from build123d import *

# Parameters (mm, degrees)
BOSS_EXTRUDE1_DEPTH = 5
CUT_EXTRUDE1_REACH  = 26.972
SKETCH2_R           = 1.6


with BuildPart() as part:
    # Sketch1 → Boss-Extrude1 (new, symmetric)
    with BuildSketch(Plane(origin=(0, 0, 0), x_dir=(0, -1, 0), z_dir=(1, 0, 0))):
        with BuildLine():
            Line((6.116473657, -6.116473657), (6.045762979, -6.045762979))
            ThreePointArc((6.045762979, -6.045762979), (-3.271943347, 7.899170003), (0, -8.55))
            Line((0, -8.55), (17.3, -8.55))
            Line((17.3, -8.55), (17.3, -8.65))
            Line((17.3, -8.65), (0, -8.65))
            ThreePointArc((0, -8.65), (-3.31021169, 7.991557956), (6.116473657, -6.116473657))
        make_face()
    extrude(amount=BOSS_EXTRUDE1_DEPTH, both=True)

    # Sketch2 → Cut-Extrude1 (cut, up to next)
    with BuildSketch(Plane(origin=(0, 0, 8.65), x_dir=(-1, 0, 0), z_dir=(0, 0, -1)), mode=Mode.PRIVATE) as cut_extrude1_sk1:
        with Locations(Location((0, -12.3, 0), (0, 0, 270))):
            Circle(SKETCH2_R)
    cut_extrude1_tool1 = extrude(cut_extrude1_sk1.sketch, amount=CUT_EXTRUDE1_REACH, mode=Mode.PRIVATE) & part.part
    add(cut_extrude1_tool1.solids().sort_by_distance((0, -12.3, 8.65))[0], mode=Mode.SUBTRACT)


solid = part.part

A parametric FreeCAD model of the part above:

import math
import FreeCAD as App
import Part
import Sketcher
from FreeCAD import Vector
Q = App.Units.Quantity

doc = App.newDocument("Part")
body = doc.addObject("PartDesign::Body", "Body")

# Sketch on YZ plane
sketch1 = doc.addObject("Sketcher::SketchObject", "Sketch")
body.addObject(sketch1)
sketch1.AttachmentSupport = (doc.YZ_Plane, [""])
sketch1.MapMode = "FlatFace"
sketch1.addGeometry(Part.LineSegment(Vector(-6.05, 6.05, 0), Vector(-6.12, 6.12, 0)), False)
sketch1.addGeometry(Part.ArcOfCircle(Part.Circle(Vector(0, 0, 0), Vector(0, 0, 1), 8.65), math.radians(135), math.radians(450)), False)
sketch1.addGeometry(Part.LineSegment(Vector(0, 8.65, 0), Vector(-17.3, 8.65, 0)), False)
sketch1.addGeometry(Part.LineSegment(Vector(-17.3, 8.65, 0), Vector(-17.3, 8.55, 0)), False)
sketch1.addGeometry(Part.LineSegment(Vector(-17.3, 8.55, 0), Vector(0, 8.55, 0)), False)
sketch1.addGeometry(Part.ArcOfCircle(Part.Circle(Vector(0, 0, 0), Vector(0, 0, 1), 8.55), math.radians(135), math.radians(450)), False)
sketch1.addConstraint(Sketcher.Constraint("Coincident", 0, 2, 1, 1))
sketch1.addConstraint(Sketcher.Constraint("Tangent", 1, 2, 2, 1))
sketch1.addConstraint(Sketcher.Constraint("Coincident", 2, 2, 3, 1))
sketch1.addConstraint(Sketcher.Constraint("Coincident", 3, 2, 4, 1))
sketch1.addConstraint(Sketcher.Constraint("Tangent", 4, 2, 5, 2))
sketch1.addConstraint(Sketcher.Constraint("Coincident", 5, 1, 0, 1))
sketch1.addConstraint(Sketcher.Constraint("Horizontal", 2))
sketch1.addConstraint(Sketcher.Constraint("Vertical", 3))
sketch1.addConstraint(Sketcher.Constraint("Horizontal", 4))
sketch1.addConstraint(Sketcher.Constraint("Coincident", 1, 3, -1, 1))
sketch1.addConstraint(Sketcher.Constraint("Coincident", 5, 3, -1, 1))
sketch1.addConstraint(Sketcher.Constraint("Angle", 0, Q("135 deg")))
sketch1.addConstraint(Sketcher.Constraint("Radius", 1, Q("8.65 mm")))
sketch1.addConstraint(Sketcher.Constraint("Radius", 5, Q("8.55 mm")))
sketch1.addConstraint(Sketcher.Constraint("DistanceX", 2, 2, 2, 1, Q("17.3 mm")))
sketch1.addConstraint(Sketcher.Constraint("DistanceX", 0, 2, -1, 1, Q("6.116474 mm")))
pad1 = doc.addObject("PartDesign::Pad", "Pad")
body.addObject(pad1)
pad1.Profile = sketch1
pad1.Length = 10
pad1.Midplane = True

# Sketch on XY plane
sketch2 = doc.addObject("Sketcher::SketchObject", "Sketch001")
body.addObject(sketch2)
sketch2.AttachmentSupport = (doc.XY_Plane, [""])
sketch2.MapMode = "FlatFace"
sketch2.AttachmentOffset = App.Placement(Vector(0, 0, 8.65), App.Rotation())
sketch2.addGeometry(Part.Circle(Vector(0, -12.3, 0), Vector(0, 0, 1), 1.6), False)
sketch2.addConstraint(Sketcher.Constraint("PointOnObject", 0, 3, -2))
sketch2.addConstraint(Sketcher.Constraint("Diameter", 0, Q("3.2 mm")))
sketch2.addConstraint(Sketcher.Constraint("DistanceY", 0, 3, -1, 1, Q("12.3 mm")))
pocket1 = doc.addObject("PartDesign::Pocket", "Pocket")
body.addObject(pocket1)
pocket1.Profile = sketch2
pocket1.Type = "UpToFirst"

doc.recompute()
